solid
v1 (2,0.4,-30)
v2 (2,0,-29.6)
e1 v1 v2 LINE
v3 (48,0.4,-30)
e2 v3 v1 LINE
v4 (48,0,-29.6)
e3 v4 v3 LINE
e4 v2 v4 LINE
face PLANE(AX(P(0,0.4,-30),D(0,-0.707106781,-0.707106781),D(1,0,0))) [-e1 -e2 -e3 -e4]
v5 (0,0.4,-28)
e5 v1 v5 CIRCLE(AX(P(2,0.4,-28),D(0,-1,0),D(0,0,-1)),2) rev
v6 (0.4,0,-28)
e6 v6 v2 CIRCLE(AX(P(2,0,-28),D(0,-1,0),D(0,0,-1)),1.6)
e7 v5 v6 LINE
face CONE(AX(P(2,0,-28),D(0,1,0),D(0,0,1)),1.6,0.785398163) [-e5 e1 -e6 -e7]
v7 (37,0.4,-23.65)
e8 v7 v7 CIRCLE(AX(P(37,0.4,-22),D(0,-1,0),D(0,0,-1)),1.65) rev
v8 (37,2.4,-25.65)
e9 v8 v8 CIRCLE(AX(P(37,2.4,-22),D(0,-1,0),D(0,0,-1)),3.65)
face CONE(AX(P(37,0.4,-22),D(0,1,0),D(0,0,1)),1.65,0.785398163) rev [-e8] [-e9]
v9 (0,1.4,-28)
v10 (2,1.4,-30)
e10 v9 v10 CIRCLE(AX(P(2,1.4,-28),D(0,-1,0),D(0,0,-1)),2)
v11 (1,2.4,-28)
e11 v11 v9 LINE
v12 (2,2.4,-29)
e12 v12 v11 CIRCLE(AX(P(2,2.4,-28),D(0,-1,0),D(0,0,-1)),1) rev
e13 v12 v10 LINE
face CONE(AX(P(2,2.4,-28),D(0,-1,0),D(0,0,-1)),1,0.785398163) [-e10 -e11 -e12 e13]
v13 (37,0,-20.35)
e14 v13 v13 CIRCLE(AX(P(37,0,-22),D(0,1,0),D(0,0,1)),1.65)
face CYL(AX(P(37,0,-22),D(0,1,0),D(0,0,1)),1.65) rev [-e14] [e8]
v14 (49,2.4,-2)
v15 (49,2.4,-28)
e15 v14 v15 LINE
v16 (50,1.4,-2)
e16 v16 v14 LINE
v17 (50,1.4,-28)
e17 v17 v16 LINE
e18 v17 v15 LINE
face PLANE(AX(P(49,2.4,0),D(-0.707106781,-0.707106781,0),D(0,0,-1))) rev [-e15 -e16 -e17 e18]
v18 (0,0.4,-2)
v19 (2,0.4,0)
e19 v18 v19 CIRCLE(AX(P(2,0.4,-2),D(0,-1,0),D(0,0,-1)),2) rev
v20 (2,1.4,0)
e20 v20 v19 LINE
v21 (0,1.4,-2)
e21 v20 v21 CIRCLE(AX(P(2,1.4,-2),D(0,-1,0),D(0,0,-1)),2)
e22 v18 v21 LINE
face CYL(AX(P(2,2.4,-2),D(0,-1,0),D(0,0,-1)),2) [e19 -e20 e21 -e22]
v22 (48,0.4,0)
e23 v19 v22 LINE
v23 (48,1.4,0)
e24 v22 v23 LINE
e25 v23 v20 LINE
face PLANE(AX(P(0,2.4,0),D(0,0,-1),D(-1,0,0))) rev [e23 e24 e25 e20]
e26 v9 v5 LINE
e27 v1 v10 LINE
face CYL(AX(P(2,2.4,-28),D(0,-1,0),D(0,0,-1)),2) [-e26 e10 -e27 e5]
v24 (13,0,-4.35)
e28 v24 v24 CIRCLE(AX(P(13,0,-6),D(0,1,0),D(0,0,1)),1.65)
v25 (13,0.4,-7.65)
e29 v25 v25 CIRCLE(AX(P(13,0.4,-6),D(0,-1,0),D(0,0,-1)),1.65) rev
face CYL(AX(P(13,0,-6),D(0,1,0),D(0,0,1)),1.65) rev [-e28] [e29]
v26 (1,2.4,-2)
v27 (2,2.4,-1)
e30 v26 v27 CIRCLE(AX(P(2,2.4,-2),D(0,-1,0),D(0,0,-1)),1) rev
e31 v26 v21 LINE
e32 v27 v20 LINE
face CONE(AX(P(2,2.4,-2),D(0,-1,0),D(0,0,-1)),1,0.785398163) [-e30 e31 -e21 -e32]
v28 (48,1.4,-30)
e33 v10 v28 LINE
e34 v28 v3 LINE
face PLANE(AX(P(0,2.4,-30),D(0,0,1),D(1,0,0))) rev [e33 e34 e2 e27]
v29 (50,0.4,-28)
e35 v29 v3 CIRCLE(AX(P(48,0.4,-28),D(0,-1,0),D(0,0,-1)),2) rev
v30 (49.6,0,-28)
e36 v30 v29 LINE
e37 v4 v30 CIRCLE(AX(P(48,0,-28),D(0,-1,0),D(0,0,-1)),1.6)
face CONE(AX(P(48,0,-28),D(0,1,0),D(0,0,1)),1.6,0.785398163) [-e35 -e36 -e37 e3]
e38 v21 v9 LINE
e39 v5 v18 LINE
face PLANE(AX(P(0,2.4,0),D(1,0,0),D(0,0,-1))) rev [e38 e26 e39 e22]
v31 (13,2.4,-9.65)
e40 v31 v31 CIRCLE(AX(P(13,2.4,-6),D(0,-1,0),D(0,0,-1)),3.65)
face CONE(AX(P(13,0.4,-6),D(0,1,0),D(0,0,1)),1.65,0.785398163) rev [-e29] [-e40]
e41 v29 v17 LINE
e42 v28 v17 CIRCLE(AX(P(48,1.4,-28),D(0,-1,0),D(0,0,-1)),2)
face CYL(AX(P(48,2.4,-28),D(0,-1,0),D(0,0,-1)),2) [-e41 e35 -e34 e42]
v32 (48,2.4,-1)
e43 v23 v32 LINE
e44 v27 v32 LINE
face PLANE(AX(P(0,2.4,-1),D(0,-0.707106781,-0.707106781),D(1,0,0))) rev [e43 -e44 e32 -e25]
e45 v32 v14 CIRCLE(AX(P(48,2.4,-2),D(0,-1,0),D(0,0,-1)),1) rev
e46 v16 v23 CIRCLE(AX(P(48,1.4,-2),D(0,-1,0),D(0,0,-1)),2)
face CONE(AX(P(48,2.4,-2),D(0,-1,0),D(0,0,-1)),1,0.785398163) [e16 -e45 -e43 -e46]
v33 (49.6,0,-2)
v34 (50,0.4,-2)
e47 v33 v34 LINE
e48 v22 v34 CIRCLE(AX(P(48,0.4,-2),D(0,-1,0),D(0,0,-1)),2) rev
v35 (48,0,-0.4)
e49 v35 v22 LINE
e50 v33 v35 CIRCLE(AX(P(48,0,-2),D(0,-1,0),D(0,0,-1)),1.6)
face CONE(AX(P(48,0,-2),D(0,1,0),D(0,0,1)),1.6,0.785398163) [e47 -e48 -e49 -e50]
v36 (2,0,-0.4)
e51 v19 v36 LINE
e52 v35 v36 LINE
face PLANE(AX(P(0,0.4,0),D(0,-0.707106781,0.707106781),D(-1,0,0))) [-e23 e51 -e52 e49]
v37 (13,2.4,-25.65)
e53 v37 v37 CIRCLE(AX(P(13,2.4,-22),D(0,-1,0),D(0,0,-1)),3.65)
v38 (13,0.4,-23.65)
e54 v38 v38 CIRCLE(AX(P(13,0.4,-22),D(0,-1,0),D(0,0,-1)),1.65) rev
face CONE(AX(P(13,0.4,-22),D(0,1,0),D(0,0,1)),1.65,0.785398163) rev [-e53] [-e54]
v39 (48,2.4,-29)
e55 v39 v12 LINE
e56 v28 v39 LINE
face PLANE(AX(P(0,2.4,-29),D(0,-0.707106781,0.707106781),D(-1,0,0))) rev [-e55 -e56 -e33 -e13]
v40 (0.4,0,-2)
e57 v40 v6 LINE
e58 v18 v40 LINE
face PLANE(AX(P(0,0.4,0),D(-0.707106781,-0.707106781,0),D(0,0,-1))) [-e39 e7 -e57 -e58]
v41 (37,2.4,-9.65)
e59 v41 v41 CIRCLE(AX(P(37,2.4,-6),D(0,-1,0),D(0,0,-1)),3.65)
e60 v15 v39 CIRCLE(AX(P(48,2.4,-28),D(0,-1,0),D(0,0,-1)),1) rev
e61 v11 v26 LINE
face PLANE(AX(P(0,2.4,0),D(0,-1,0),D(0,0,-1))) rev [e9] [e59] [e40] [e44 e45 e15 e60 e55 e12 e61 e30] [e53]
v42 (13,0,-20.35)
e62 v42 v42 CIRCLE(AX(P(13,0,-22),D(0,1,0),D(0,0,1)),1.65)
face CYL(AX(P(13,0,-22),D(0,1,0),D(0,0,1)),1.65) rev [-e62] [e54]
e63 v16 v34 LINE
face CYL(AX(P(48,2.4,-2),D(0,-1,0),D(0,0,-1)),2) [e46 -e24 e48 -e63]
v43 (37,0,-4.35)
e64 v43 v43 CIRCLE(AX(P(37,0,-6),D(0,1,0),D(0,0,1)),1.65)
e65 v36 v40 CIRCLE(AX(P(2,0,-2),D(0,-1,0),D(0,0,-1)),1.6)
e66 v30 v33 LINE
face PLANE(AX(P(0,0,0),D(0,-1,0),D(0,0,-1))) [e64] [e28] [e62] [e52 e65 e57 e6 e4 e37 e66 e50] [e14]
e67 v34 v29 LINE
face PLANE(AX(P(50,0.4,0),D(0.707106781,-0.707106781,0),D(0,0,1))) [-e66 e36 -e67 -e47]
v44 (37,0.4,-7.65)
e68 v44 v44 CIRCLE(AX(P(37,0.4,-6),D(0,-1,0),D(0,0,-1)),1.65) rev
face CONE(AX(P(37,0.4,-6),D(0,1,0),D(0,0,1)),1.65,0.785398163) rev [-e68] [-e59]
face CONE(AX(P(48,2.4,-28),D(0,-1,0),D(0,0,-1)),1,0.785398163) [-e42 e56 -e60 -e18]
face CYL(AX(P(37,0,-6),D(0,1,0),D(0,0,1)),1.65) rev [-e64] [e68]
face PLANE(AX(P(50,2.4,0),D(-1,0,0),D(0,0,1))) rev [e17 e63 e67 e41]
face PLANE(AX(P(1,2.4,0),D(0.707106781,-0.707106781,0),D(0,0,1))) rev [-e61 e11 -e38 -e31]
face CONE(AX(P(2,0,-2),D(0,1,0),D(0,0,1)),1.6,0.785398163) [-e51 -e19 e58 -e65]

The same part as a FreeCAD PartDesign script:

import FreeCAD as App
import Part
import Sketcher
Q = App.Units.Quantity


def edges_at(feature, points):
    """Names of the edges that pass closest to the given points."""
    edges = feature.Shape.Edges
    near = lambda p: min(range(len(edges)), key=lambda i: edges[i].distToShape(Part.Vertex(*p))[0])
    return sorted({f"Edge{near(p) + 1}" for p in points})


def add_polygon(sketch, points):
    """Adds a closed chain of lines whose ends are joined by coincident constraints."""
    first, n = sketch.GeometryCount, len(points)
    for a, b in zip(points, points[1:] + points[:1]):
        sketch.addGeometry(Part.LineSegment(App.Vector(*a, 0), App.Vector(*b, 0)), False)
    for i in range(n):
        sketch.addConstraint(Sketcher.Constraint("Coincident", first + i, 2, first + (i + 1) % n, 1))

doc = App.newDocument("Part")
body = doc.addObject("PartDesign::Body", "Body")

sketch1 = body.newObject("Sketcher::SketchObject", "Sketch")
sketch1.AttachmentSupport = (doc.getObject("XZ_Plane"), [""])
sketch1.MapMode = "FlatFace"
add_polygon(sketch1, [(0, -30), (0, 0), (50, 0), (50, -30)])
sketch1.addConstraint([
    Sketcher.Constraint("Vertical", 0),
    Sketcher.Constraint("Horizontal", 1),
    Sketcher.Constraint("Vertical", 2),
    Sketcher.Constraint("Horizontal", 3),
    Sketcher.Constraint("Coincident", 0, 2, -1, 1),
    Sketcher.Constraint("DistanceX", 1, 1, 1, 2, Q("50 mm")),
    Sketcher.Constraint("DistanceY", 0, 1, 0, 2, Q("30 mm")),
])
pad1 = body.newObject("PartDesign::Pad", "Pad")
pad1.Profile = sketch1
pad1.Length = 2.4
pad1.Reversed = True

sketch2 = body.newObject("Sketcher::SketchObject", "Sketch001")
sketch2.AttachmentSupport = (doc.getObject("XZ_Plane"), [""])
sketch2.MapMode = "FlatFace"
sketch2.AttachmentOffset = App.Placement(App.Vector(0, 0, -2.4), App.Rotation())
sketch2.addGeometry([
    Part.Circle(App.Vector(13, -6, 0), App.Vector(0, 0, 1), 1.6),
    Part.Circle(App.Vector(37, -6, 0), App.Vector(0, 0, 1), 1.6),
    Part.Circle(App.Vector(13, -22, 0), App.Vector(0, 0, 1), 1.6),
    Part.Circle(App.Vector(37, -22, 0), App.Vector(0, 0, 1), 1.6),
], False)
sketch2.addConstraint([
    Sketcher.Constraint("Equal", 0, 1),
    Sketcher.Constraint("Equal", 1, 2),
    Sketcher.Constraint("Equal", 2, 3),
    Sketcher.Constraint("Horizontal", 0, 3, 1, 3),
    Sketcher.Constraint("Horizontal", 2, 3, 3, 3),
    Sketcher.Constraint("Vertical", 0, 3, 2, 3),
    Sketcher.Constraint("Vertical", 1, 3, 3, 3),
    Sketcher.Constraint("Diameter", 0, Q("3.3 mm")),
    Sketcher.Constraint("DistanceX", -1, 1, 0, 3, Q("13 mm")),
    Sketcher.Constraint("DistanceY", 0, 3, -1, 1, Q("6 mm")),
    Sketcher.Constraint("DistanceX", -1, 1, 1, 3, Q("37 mm")),
    Sketcher.Constraint("DistanceY", 2, 3, -1, 1, Q("22 mm")),
])
pocket1 = body.newObject("PartDesign::Pocket", "Pocket")
pocket1.Profile = sketch2
pocket1.Type = "ThroughAll"
pocket1.Reversed = True
doc.recompute()

chamfer = body.newObject("PartDesign::Chamfer", "Chamfer")
chamfer.Base = (pocket1, edges_at(pocket1, [
    (13, 2.4, -7.65),
    (37, 2.4, -23.65),
    (37, 2.4, -7.65),
    (13, 2.4, -23.65),
]))
chamfer.Size = 2
doc.recompute()

fillet = body.newObject("PartDesign::Fillet", "Fillet")
fillet.Base = (chamfer, edges_at(chamfer, [
    (0, 1.2, -30),
    (50, 1.2, -30),
    (50, 1.2, 0),
    (0, 1.2, 0),
]))
fillet.Radius = 2
doc.recompute()

chamfer2 = body.newObject("PartDesign::Chamfer", "Chamfer001")
chamfer2.Base = (fillet, edges_at(fillet, [
    (25, 2.4, -30),
    (50, 2.4, -15),
    (0, 2.4, -15),
    (25, 2.4, 0),
    (0.586, 2.4, -29.414),
    (0.586, 2.4, -0.586),
    (49.414, 2.4, -0.586),
    (49.414, 2.4, -29.414),
]))
chamfer2.Size = 1
doc.recompute()

chamfer3 = body.newObject("PartDesign::Chamfer", "Chamfer002")
chamfer3.Base = (chamfer2, edges_at(chamfer2, [
    (25, 0, -30),
    (0, 0, -15),
    (50, 0, -15),
    (25, 0, 0),
    (0.586, 0, -29.414),
    (0.586, 0, -0.586),
    (49.414, 0, -0.586),
    (49.414, 0, -29.414),
]))
chamfer3.Size = 0.4

doc.recompute()
